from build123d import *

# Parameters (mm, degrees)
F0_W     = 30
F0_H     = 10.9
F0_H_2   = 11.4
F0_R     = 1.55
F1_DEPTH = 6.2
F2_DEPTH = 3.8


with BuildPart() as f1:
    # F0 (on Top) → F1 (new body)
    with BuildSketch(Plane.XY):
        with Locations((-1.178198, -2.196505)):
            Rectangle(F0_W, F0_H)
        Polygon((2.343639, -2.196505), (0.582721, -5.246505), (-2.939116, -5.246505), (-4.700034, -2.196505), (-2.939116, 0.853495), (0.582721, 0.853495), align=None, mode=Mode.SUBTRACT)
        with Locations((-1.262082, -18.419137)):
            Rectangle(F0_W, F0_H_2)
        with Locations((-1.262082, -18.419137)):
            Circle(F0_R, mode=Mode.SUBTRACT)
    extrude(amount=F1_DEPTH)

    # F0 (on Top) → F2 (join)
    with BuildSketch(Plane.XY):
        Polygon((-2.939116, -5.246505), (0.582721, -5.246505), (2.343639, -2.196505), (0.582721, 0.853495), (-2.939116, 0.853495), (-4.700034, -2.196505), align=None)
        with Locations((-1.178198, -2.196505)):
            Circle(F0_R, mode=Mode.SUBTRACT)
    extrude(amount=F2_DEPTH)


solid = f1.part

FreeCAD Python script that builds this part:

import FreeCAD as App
import Part
import Sketcher

V = App.Vector
Q = App.Units.Quantity

doc = App.newDocument("Part")
body = doc.addObject("PartDesign::Body", "Body")
body.AllowCompound = True

sketch1 = body.newObject("Sketcher::SketchObject", "Sketch")
sketch1.AttachmentSupport = (doc.getObject("XY_Plane"), [""])
sketch1.MapMode = "FlatFace"
sketch1.addGeometry([
    Part.LineSegment(V(-16.2, 3.3, 0), V(-16.2, -7.6, 0)),
    Part.LineSegment(V(-16.2, -7.6, 0), V(13.8, -7.6, 0)),
    Part.LineSegment(V(13.8, -7.6, 0), V(13.8, 3.3, 0)),
    Part.LineSegment(V(13.8, 3.3, 0), V(-16.2, 3.3, 0)),
    Part.LineSegment(V(0.6, 0.9, 0), V(2.3, -2.2, 0)),
    Part.LineSegment(V(2.3, -2.2, 0), V(0.6, -5.2, 0)),
    Part.LineSegment(V(0.6, -5.2, 0), V(-2.9, -5.2, 0)),
    Part.LineSegment(V(-2.9, -5.2, 0), V(-4.7, -2.2, 0)),
    Part.LineSegment(V(-4.7, -2.2, 0), V(-2.9, 0.9, 0)),
    Part.LineSegment(V(-2.9, 0.9, 0), V(0.6, 0.9, 0)),
    Part.LineSegment(V(-16.3, -12.7, 0), V(-16.3, -24.1, 0)),
    Part.LineSegment(V(-16.3, -24.1, 0), V(13.7, -24.1, 0)),
    Part.LineSegment(V(13.7, -24.1, 0), V(13.7, -12.7, 0)),
    Part.LineSegment(V(13.7, -12.7, 0), V(-16.3, -12.7, 0)),
    Part.Circle(V(-1.3, -18.4, 0), V(0, 0, 1), 1.6),
], False)
sketch1.addConstraint([
    Sketcher.Constraint("Coincident", 0, 2, 1, 1),
    Sketcher.Constraint("Coincident", 1, 2, 2, 1),
    Sketcher.Constraint("Coincident", 2, 2, 3, 1),
    Sketcher.Constraint("Coincident", 3, 2, 0, 1),
    Sketcher.Constraint("Coincident", 4, 2, 5, 1),
    Sketcher.Constraint("Coincident", 5, 2, 6, 1),
    Sketcher.Constraint("Coincident", 6, 2, 7, 1),
    Sketcher.Constraint("Coincident", 7, 2, 8, 1),
    Sketcher.Constraint("Coincident", 8, 2, 9, 1),
    Sketcher.Constraint("Coincident", 9, 2, 4, 1),
    Sketcher.Constraint("Coincident", 10, 2, 11, 1),
    Sketcher.Constraint("Coincident", 11, 2, 12, 1),
    Sketcher.Constraint("Coincident", 12, 2, 13, 1),
    Sketcher.Constraint("Coincident", 13, 2, 10, 1),
    Sketcher.Constraint("Vertical", 0),
    Sketcher.Constraint("Horizontal", 1),
    Sketcher.Constraint("Vertical", 2),
    Sketcher.Constraint("Horizontal", 3),
    Sketcher.Constraint("Horizontal", 6),
    Sketcher.Constraint("Horizontal", 9),
    Sketcher.Constraint("Vertical", 10),
    Sketcher.Constraint("Horizontal", 11),
    Sketcher.Constraint("Vertical", 12),
    Sketcher.Constraint("Horizontal", 13),
    Sketcher.Constraint("Parallel", 4, 7),
    Sketcher.Constraint("Parallel", 5, 8),
    Sketcher.Constraint("Horizontal", 4, 2, 7, 2),
    Sketcher.Constraint("Vertical", 6, 2, 8, 2),
    Sketcher.Constraint("Vertical", 5, 2, 9, 2),
    Sketcher.Constraint("Equal", 3, 11),
    Sketcher.Constraint("Diameter", 14, 3.1),
    Sketcher.Constraint("DistanceX", 1, 1, 1, 2, 30.0),
    Sketcher.Constraint("Angle", 4, Q("-60.000005 deg")),
    Sketcher.Constraint("DistanceY", 0, 2, 0, 1, 10.9),
    Sketcher.Constraint("DistanceY", 10, 2, 10, 1, 11.4),
    Sketcher.Constraint("DistanceX", 10, 2, 14, 3, 15.0),
    Sketcher.Constraint("DistanceY", 1, 2, 5, 2, 2.4),
    Sketcher.Constraint("DistanceY", 6, 2, 8, 2, 6.1),
    Sketcher.Constraint("DistanceY", 10, 2, 14, 3, 5.7),
    Sketcher.Constraint("DistanceX", 6, 2, 6, 1, 3.521837),
    Sketcher.Constraint("DistanceX", 14, 3, -1, 1, 1.262082),
    Sketcher.Constraint("DistanceX", -1, 1, 4, 2, 2.343639),
    Sketcher.Constraint("DistanceY", 14, 3, 0, 2, 10.772632),
    Sketcher.Constraint("DistanceX", 5, 2, 1, 2, 13.239081),
    Sketcher.Constraint("DistanceY", 14, 3, -1, 1, 18.419137),
])
pad1 = body.newObject("PartDesign::Pad", "Pad")
pad1.Profile = sketch1
pad1.Length = 6.2

sketch2 = body.newObject("Sketcher::SketchObject", "Sketch001")
sketch2.AttachmentSupport = (doc.getObject("XY_Plane"), [""])
sketch2.MapMode = "FlatFace"
sketch2.addGeometry([
    Part.LineSegment(V(-2.9, -5.2, 0), V(0.6, -5.2, 0)),
    Part.LineSegment(V(0.6, -5.2, 0), V(2.3, -2.2, 0)),
    Part.LineSegment(V(2.3, -2.2, 0), V(0.6, 0.9, 0)),
    Part.LineSegment(V(0.6, 0.9, 0), V(-2.9, 0.9, 0)),
    Part.LineSegment(V(-2.9, 0.9, 0), V(-4.7, -2.2, 0)),
    Part.LineSegment(V(-4.7, -2.2, 0), V(-2.9, -5.2, 0)),
    Part.Circle(V(-1.2, -2.2, 0), V(0, 0, 1), 1.6),
], False)
sketch2.addConstraint([
    Sketcher.Constraint("Coincident", 0, 2, 1, 1),
    Sketcher.Constraint("Coincident", 1, 2, 2, 1),
    Sketcher.Constraint("Coincident", 2, 2, 3, 1),
    Sketcher.Constraint("Coincident", 3, 2, 4, 1),
    Sketcher.Constraint("Coincident", 4, 2, 5, 1),
    Sketcher.Constraint("Coincident", 5, 2, 0, 1),
    Sketcher.Constraint("Horizontal", 0),
    Sketcher.Constraint("Horizontal", 3),
    Sketcher.Constraint("Parallel", 1, 4),
    Sketcher.Constraint("Parallel", 2, 5),
    Sketcher.Constraint("Horizontal", 6, 3, 1, 2),
    Sketcher.Constraint("Horizontal", 1, 2, 4, 2),
    Sketcher.Constraint("Vertical", 0, 2, 2, 2),
    Sketcher.Constraint("Vertical", 3, 2, 5, 2),
    Sketcher.Constraint("Diameter", 6, 3.1),
    Sketcher.Constraint("Angle", 1, Q("60.000005 deg")),
    Sketcher.Constraint("DistanceY", 0, 2, 2, 2, 6.1),
    Sketcher.Constraint("DistanceX", 6, 3, -1, 1, 1.178198),
    Sketcher.Constraint("DistanceX", 0, 1, 0, 2, 3.521837),
    Sketcher.Constraint("DistanceX", -1, 1, 0, 2, 0.582721),
    Sketcher.Constraint("DistanceY", 6, 3, -1, 1, 2.196505),
])
pad2 = body.newObject("PartDesign::Pad", "Pad001")
pad2.Profile = sketch2
pad2.Length = 3.8

doc.recompute()
